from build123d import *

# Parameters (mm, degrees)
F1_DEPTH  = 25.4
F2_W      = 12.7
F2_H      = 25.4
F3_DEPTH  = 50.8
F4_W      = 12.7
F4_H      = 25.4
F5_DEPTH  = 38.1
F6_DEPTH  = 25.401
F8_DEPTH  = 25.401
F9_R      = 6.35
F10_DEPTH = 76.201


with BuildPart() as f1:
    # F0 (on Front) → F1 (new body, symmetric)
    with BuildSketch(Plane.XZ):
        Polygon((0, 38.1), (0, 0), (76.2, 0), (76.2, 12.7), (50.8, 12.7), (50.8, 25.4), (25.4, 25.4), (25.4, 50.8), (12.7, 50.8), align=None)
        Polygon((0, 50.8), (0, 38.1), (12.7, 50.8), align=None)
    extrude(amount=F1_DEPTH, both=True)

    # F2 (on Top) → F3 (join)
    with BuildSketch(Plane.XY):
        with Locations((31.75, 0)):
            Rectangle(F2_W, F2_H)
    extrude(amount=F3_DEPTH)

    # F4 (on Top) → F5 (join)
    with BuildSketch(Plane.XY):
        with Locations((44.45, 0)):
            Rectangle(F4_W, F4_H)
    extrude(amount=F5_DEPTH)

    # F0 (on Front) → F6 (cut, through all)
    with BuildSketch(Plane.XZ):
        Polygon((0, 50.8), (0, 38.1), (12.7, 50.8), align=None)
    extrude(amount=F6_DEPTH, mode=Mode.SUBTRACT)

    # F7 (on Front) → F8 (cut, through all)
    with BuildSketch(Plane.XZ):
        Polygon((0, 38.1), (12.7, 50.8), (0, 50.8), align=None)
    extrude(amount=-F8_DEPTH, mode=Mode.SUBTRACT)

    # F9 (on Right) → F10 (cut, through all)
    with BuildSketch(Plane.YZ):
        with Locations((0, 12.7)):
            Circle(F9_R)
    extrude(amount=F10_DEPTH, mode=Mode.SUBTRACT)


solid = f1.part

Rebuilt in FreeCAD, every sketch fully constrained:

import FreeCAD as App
import Part
import Sketcher
Q = App.Units.Quantity

doc = App.newDocument("Part")
body = doc.addObject("PartDesign::Body", "Body")

sketch1 = body.newObject("Sketcher::SketchObject", "Sketch")
sketch1.AttachmentSupport = (doc.getObject("XZ_Plane"), [""])
sketch1.MapMode = "FlatFace"
sketch1.addGeometry(Part.LineSegment(App.Vector(0, 0, 0), App.Vector(76, 0, 0)), False)
sketch1.addGeometry(Part.LineSegment(App.Vector(76, 0, 0), App.Vector(76, 13, 0)), False)
sketch1.addGeometry(Part.LineSegment(App.Vector(76, 13, 0), App.Vector(51, 13, 0)), False)
sketch1.addGeometry(Part.LineSegment(App.Vector(51, 13, 0), App.Vector(51, 25, 0)), False)
sketch1.addGeometry(Part.LineSegment(App.Vector(51, 25, 0), App.Vector(25, 25, 0)), False)
sketch1.addGeometry(Part.LineSegment(App.Vector(25, 25, 0), App.Vector(25, 51, 0)), False)
sketch1.addGeometry(Part.LineSegment(App.Vector(25, 51, 0), App.Vector(0, 51, 0)), False)
sketch1.addGeometry(Part.LineSegment(App.Vector(0, 51, 0), App.Vector(0, 0, 0)), False)
sketch1.addConstraint(Sketcher.Constraint("Coincident", 0, 2, 1, 1))
sketch1.addConstraint(Sketcher.Constraint("Coincident", 1, 2, 2, 1))
sketch1.addConstraint(Sketcher.Constraint("Coincident", 2, 2, 3, 1))
sketch1.addConstraint(Sketcher.Constraint("Coincident", 3, 2, 4, 1))
sketch1.addConstraint(Sketcher.Constraint("Coincident", 4, 2, 5, 1))
sketch1.addConstraint(Sketcher.Constraint("Coincident", 5, 2, 6, 1))
sketch1.addConstraint(Sketcher.Constraint("Coincident", 6, 2, 7, 1))
sketch1.addConstraint(Sketcher.Constraint("Coincident", 7, 2, 0, 1))
sketch1.addConstraint(Sketcher.Constraint("Horizontal", 0))
sketch1.addConstraint(Sketcher.Constraint("Vertical", 1))
sketch1.addConstraint(Sketcher.Constraint("Horizontal", 2))
sketch1.addConstraint(Sketcher.Constraint("Vertical", 3))
sketch1.addConstraint(Sketcher.Constraint("Horizontal", 4))
sketch1.addConstraint(Sketcher.Constraint("Vertical", 5))
sketch1.addConstraint(Sketcher.Constraint("Horizontal", 6))
sketch1.addConstraint(Sketcher.Constraint("Vertical", 7))
sketch1.addConstraint(Sketcher.Constraint("Coincident", 7, 2, -1, 1))
sketch1.addConstraint(Sketcher.Constraint("Equal", 2, 4))
sketch1.addConstraint(Sketcher.Constraint("Equal", 4, 6))
sketch1.addConstraint(Sketcher.Constraint("Equal", 1, 3))
sketch1.addConstraint(Sketcher.Constraint("Equal", 6, 5))
sketch1.addConstraint(Sketcher.Constraint("DistanceX", 0, 1, 0, 2, Q("3 in")))
sketch1.addConstraint(Sketcher.Constraint("DistanceY", 7, 2, 7, 1, Q("2 in")))
pad1 = body.newObject("PartDesign::Pad", "Pad")
pad1.Profile = sketch1
pad1.Length = Q("2 in")
pad1.Midplane = True

sketch2 = body.newObject("Sketcher::SketchObject", "Sketch001")
sketch2.AttachmentSupport = (doc.getObject("XY_Plane"), [""])
sketch2.MapMode = "FlatFace"
sketch2.addGeometry(Part.LineSegment(App.Vector(25, 13, 0), App.Vector(25, -13, 0)), False)
sketch2.addGeometry(Part.LineSegment(App.Vector(25, -13, 0), App.Vector(38, -13, 0)), False)
sketch2.addGeometry(Part.LineSegment(App.Vector(38, -13, 0), App.Vector(38, 13, 0)), False)
sketch2.addGeometry(Part.LineSegment(App.Vector(38, 13, 0), App.Vector(25, 13, 0)), False)
sketch2.addConstraint(Sketcher.Constraint("Coincident", 0, 2, 1, 1))
sketch2.addConstraint(Sketcher.Constraint("Coincident", 1, 2, 2, 1))
sketch2.addConstraint(Sketcher.Constraint("Coincident", 2, 2, 3, 1))
sketch2.addConstraint(Sketcher.Constraint("Coincident", 3, 2, 0, 1))
sketch2.addConstraint(Sketcher.Constraint("Vertical", 0))
sketch2.addConstraint(Sketcher.Constraint("Horizontal", 1))
sketch2.addConstraint(Sketcher.Constraint("Vertical", 2))
sketch2.addConstraint(Sketcher.Constraint("Horizontal", 3))
sketch2.addConstraint(Sketcher.Constraint("DistanceY", 0, 2, 0, 1, Q("1 in")))
sketch2.addConstraint(Sketcher.Constraint("DistanceX", 1, 1, 1, 2, Q("0.5 in")))
sketch2.addConstraint(Sketcher.Constraint("DistanceX", -1, 1, 0, 2, Q("1 in")))
sketch2.addConstraint(Sketcher.Constraint("DistanceY", 0, 2, -1, 1, Q("0.5 in")))
pad2 = body.newObject("PartDesign::Pad", "Pad001")
pad2.Profile = sketch2
pad2.Length = Q("2 in")

sketch3 = body.newObject("Sketcher::SketchObject", "Sketch002")
sketch3.AttachmentSupport = (doc.getObject("XY_Plane"), [""])
sketch3.MapMode = "FlatFace"
sketch3.addGeometry(Part.LineSegment(App.Vector(38, 13, 0), App.Vector(38, -13, 0)), False)
sketch3.addGeometry(Part.LineSegment(App.Vector(38, -13, 0), App.Vector(51, -13, 0)), False)
sketch3.addGeometry(Part.LineSegment(App.Vector(51, -13, 0), App.Vector(51, 13, 0)), False)
sketch3.addGeometry(Part.LineSegment(App.Vector(51, 13, 0), App.Vector(38, 13, 0)), False)
sketch3.addConstraint(Sketcher.Constraint("Coincident", 0, 2, 1, 1))
sketch3.addConstraint(Sketcher.Constraint("Coincident", 1, 2, 2, 1))
sketch3.addConstraint(Sketcher.Constraint("Coincident", 2, 2, 3, 1))
sketch3.addConstraint(Sketcher.Constraint("Coincident", 3, 2, 0, 1))
sketch3.addConstraint(Sketcher.Constraint("Vertical", 0))
sketch3.addConstraint(Sketcher.Constraint("Horizontal", 1))
sketch3.addConstraint(Sketcher.Constraint("Vertical", 2))
sketch3.addConstraint(Sketcher.Constraint("Horizontal", 3))
sketch3.addConstraint(Sketcher.Constraint("DistanceY", 0, 2, 0, 1, Q("1 in")))
sketch3.addConstraint(Sketcher.Constraint("DistanceX", 1, 1, 1, 2, Q("0.5 in")))
sketch3.addConstraint(Sketcher.Constraint("DistanceX", -1, 1, 1, 2, Q("2 in")))
sketch3.addConstraint(Sketcher.Constraint("DistanceY", 0, 2, -1, 1, Q("0.5 in")))
pad3 = body.newObject("PartDesign::Pad", "Pad002")
pad3.Profile = sketch3
pad3.Length = Q("1.5 in")

sketch4 = body.newObject("Sketcher::SketchObject", "Sketch003")
sketch4.AttachmentSupport = (doc.getObject("XZ_Plane"), [""])
sketch4.MapMode = "FlatFace"
sketch4.addGeometry(Part.LineSegment(App.Vector(0, 51, 0), App.Vector(0, 38, 0)), False)
sketch4.addGeometry(Part.LineSegment(App.Vector(0, 38, 0), App.Vector(13, 51, 0)), False)
sketch4.addGeometry(Part.LineSegment(App.Vector(13, 51, 0), App.Vector(0, 51, 0)), False)
sketch4.addConstraint(Sketcher.Constraint("Coincident", 0, 2, 1, 1))
sketch4.addConstraint(Sketcher.Constraint("Coincident", 1, 2, 2, 1))
sketch4.addConstraint(Sketcher.Constraint("Coincident", 2, 2, 0, 1))
sketch4.addConstraint(Sketcher.Constraint("Vertical", 0))
sketch4.addConstraint(Sketcher.Constraint("Horizontal", 2))
sketch4.addConstraint(Sketcher.Constraint("PointOnObject", 0, 2, -2))
sketch4.addConstraint(Sketcher.Constraint("Equal", 2, 0))
sketch4.addConstraint(Sketcher.Constraint("DistanceX", 2, 2, 2, 1, Q("0.5 in")))
sketch4.addConstraint(Sketcher.Constraint("DistanceY", -1, 1, 1, 2, Q("2 in")))
pocket1 = body.newObject("PartDesign::Pocket", "Pocket")
pocket1.Profile = sketch4
pocket1.Type = "ThroughAll"
pocket1.Reversed = True

sketch5 = body.newObject("Sketcher::SketchObject", "Sketch004")
sketch5.AttachmentSupport = (doc.getObject("XZ_Plane"), [""])
sketch5.MapMode = "FlatFace"
sketch5.addGeometry(Part.LineSegment(App.Vector(0, 38, 0), App.Vector(13, 51, 0)), False)
sketch5.addGeometry(Part.LineSegment(App.Vector(13, 51, 0), App.Vector(0, 51, 0)), False)
sketch5.addGeometry(Part.LineSegment(App.Vector(0, 51, 0), App.Vector(0, 38, 0)), False)
sketch5.addConstraint(Sketcher.Constraint("Coincident", 0, 2, 1, 1))
sketch5.addConstraint(Sketcher.Constraint("Coincident", 1, 2, 2, 1))
sketch5.addConstraint(Sketcher.Constraint("Coincident", 2, 2, 0, 1))
sketch5.addConstraint(Sketcher.Constraint("Horizontal", 1))
sketch5.addConstraint(Sketcher.Constraint("Vertical", 2))
sketch5.addConstraint(Sketcher.Constraint("PointOnObject", 1, 2, -2))
sketch5.addConstraint(Sketcher.Constraint("Equal", 1, 2))
sketch5.addConstraint(Sketcher.Constraint("DistanceX", 1, 2, 1, 1, Q("0.5 in")))
sketch5.addConstraint(Sketcher.Constraint("DistanceY", -1, 1, 0, 2, Q("2 in")))
pocket2 = body.newObject("PartDesign::Pocket", "Pocket001")
pocket2.Profile = sketch5
pocket2.Type = "ThroughAll"

sketch6 = body.newObject("Sketcher::SketchObject", "Sketch005")
sketch6.AttachmentSupport = (doc.getObject("YZ_Plane"), [""])
sketch6.MapMode = "FlatFace"
sketch6.addGeometry(Part.Circle(App.Vector(0, 13, 0), App.Vector(0, 0, 1), 6), False)
sketch6.addConstraint(Sketcher.Constraint("PointOnObject", 0, 3, -2))
sketch6.addConstraint(Sketcher.Constraint("Diameter", 0, Q("0.5 in")))
sketch6.addConstraint(Sketcher.Constraint("DistanceY", -1, 1, 0, 3, Q("0.5 in")))
pocket3 = body.newObject("PartDesign::Pocket", "Pocket002")
pocket3.Profile = sketch6
pocket3.Type = "ThroughAll"
pocket3.Reversed = True

doc.recompute()
